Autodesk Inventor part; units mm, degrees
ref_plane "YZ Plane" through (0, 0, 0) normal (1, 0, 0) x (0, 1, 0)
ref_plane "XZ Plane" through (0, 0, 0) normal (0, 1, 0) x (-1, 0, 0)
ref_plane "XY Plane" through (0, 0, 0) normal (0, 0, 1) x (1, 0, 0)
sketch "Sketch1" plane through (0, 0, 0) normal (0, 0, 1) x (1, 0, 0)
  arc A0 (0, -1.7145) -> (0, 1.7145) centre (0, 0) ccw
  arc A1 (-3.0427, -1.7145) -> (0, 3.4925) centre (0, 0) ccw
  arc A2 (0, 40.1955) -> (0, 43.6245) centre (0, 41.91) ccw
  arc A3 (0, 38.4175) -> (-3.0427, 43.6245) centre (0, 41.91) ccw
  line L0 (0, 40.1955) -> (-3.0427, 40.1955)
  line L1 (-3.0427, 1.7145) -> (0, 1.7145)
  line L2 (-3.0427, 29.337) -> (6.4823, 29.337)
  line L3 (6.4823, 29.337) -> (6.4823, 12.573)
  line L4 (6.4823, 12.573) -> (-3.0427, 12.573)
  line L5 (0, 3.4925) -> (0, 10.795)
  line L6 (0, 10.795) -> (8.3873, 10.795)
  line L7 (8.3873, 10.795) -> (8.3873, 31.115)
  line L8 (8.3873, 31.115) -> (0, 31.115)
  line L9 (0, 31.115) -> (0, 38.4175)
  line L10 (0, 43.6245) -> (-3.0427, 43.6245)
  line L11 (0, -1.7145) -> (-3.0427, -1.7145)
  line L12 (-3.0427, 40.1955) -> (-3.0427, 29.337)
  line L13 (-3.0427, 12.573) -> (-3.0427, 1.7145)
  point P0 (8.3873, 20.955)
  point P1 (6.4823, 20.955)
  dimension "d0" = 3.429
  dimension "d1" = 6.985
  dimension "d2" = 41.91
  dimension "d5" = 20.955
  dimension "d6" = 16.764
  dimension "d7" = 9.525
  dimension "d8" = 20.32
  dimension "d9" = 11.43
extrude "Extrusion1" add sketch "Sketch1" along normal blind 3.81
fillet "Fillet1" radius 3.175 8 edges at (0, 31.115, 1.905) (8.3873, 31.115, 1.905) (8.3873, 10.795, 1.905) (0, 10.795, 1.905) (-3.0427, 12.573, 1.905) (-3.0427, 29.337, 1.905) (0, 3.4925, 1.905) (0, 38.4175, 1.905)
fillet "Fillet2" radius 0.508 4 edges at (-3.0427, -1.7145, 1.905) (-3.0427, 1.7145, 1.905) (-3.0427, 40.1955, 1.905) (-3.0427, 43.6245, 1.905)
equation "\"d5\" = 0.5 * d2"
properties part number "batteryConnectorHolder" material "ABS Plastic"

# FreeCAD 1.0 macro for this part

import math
import FreeCAD as App
import Part
import Sketcher

V = App.Vector
Q = App.Units.Quantity


def edges_at(feature, points):
    """Names of the edges that pass closest to the given points."""
    edges = feature.Shape.Edges
    near = lambda p: min(range(len(edges)), key=lambda i: edges[i].distToShape(Part.Vertex(*p))[0])
    return sorted({f"Edge{near(p) + 1}" for p in points})

doc = App.newDocument("Part")
params = doc.addObject("Spreadsheet::Sheet", "Params")
for row, (alias, value) in enumerate([
    ("sketch1_height", "0.8 in"),
    ("sketch1_height2", "0.66 in"),
    ("sketch1_width", "0.375 in"),
    ("pad1_length", "0.15 in"),
    ("fillet_radius", "0.125 in"),
    ("fillet2_radius", "0.02 in"),
], start=1):
    params.set(f"A{row}", alias)
    params.set(f"B{row}", "=" + value)
    params.setAlias(f"B{row}", alias)

body = doc.addObject("PartDesign::Body", "Body")

# Sketch on XY plane
sketch1 = body.newObject("Sketcher::SketchObject", "Sketch")
sketch1.AttachmentSupport = (doc.getObject("XY_Plane"), [""])
sketch1.MapMode = "FlatFace"
sketch1.addGeometry([
    Part.ArcOfCircle(Part.Circle(V(0, 0, 0), V(0, 0, 1), 1.7), math.radians(-90), math.radians(90)),  # 0
    Part.LineSegment(V(0, -1.7, 0), V(-3, -1.7, 0)),  # 1
    Part.ArcOfCircle(Part.Circle(V(0, 0, 0), V(0, 0, 1), 3.5), math.radians(-151), math.radians(90)),  # 2
    Part.LineSegment(V(0, 3.5, 0), V(0, 10.8, 0)),  # 3
    Part.LineSegment(V(0, 10.8, 0), V(8.4, 10.8, 0)),  # 4
    Part.LineSegment(V(8.4, 10.8, 0), V(8.4, 31.1, 0)),  # 5
    Part.LineSegment(V(8.4, 31.1, 0), V(0, 31.1, 0)),  # 6
    Part.LineSegment(V(0, 31.1, 0), V(0, 38.4, 0)),  # 7
    Part.ArcOfCircle(Part.Circle(V(0, 41.9, 0), V(0, 0, 1), 3.5), math.radians(-90), math.radians(151)),  # 8
    Part.LineSegment(V(-3, 43.6, 0), V(0, 43.6, 0)),  # 9
    Part.ArcOfCircle(Part.Circle(V(0, 41.9, 0), V(0, 0, 1), 1.7), math.radians(-90), math.radians(90)),  # 10
    Part.LineSegment(V(0, 40.2, 0), V(-3, 40.2, 0)),  # 11
    Part.LineSegment(V(-3, 40.2, 0), V(-3, 29.3, 0)),  # 12
    Part.LineSegment(V(-3, 29.3, 0), V(6.5, 29.3, 0)),  # 13
    Part.LineSegment(V(6.5, 29.3, 0), V(6.5, 12.6, 0)),  # 14
    Part.LineSegment(V(6.5, 12.6, 0), V(-3, 12.6, 0)),  # 15
    Part.LineSegment(V(-3, 12.6, 0), V(-3, 1.7, 0)),  # 16
    Part.LineSegment(V(-3, 1.7, 0), V(0, 1.7, 0)),  # 17
], False)
sketch1.addConstraint([
    Sketcher.Constraint("Tangent", 0, 1, 1, 1),
    Sketcher.Constraint("Coincident", 1, 2, 2, 1),
    Sketcher.Constraint("Coincident", 2, 2, 3, 1),
    Sketcher.Constraint("Coincident", 3, 2, 4, 1),
    Sketcher.Constraint("Coincident", 4, 2, 5, 1),
    Sketcher.Constraint("Coincident", 5, 2, 6, 1),
    Sketcher.Constraint("Coincident", 6, 2, 7, 1),
    Sketcher.Constraint("Coincident", 7, 2, 8, 1),
    Sketcher.Constraint("Coincident", 8, 2, 9, 1),
    Sketcher.Constraint("Tangent", 9, 2, 10, 2),
    Sketcher.Constraint("Tangent", 10, 1, 11, 1),
    Sketcher.Constraint("Coincident", 11, 2, 12, 1),
    Sketcher.Constraint("Coincident", 12, 2, 13, 1),
    Sketcher.Constraint("Coincident", 13, 2, 14, 1),
    Sketcher.Constraint("Coincident", 14, 2, 15, 1),
    Sketcher.Constraint("Coincident", 15, 2, 16, 1),
    Sketcher.Constraint("Coincident", 16, 2, 17, 1),
    Sketcher.Constraint("Tangent", 17, 2, 0, 2),
    Sketcher.Constraint("Horizontal", 1),
    Sketcher.Constraint("Vertical", 3),
    Sketcher.Constraint("Horizontal", 4),
    Sketcher.Constraint("Vertical", 5),
    Sketcher.Constraint("Horizontal", 6),
    Sketcher.Constraint("Vertical", 7),
    Sketcher.Constraint("Horizontal", 9),
    Sketcher.Constraint("Horizontal", 11),
    Sketcher.Constraint("Vertical", 12),
    Sketcher.Constraint("Horizontal", 13),
    Sketcher.Constraint("Vertical", 14),
    Sketcher.Constraint("Horizontal", 15),
    Sketcher.Constraint("Vertical", 16),
    Sketcher.Constraint("Horizontal", 17),
    Sketcher.Constraint("Coincident", 0, 3, -1, 1),
    Sketcher.Constraint("Coincident", 2, 3, -1, 1),
    Sketcher.Constraint("Coincident", 10, 3, 8, 3),
    Sketcher.Constraint("Equal", 2, 8),
    Sketcher.Constraint("Equal", 0, 10),
    Sketcher.Constraint("PointOnObject", 8, 3, -2),
    Sketcher.Constraint("PointOnObject", 2, 2, -2),
    Sketcher.Constraint("PointOnObject", 6, 2, -2),
    Sketcher.Constraint("Vertical", 8, 2, 11, 2),
    Sketcher.Constraint("Vertical", 12, 2, 15, 2),
    Sketcher.Constraint("Equal", 3, 7),
    Sketcher.Constraint("Equal", 12, 16),
    Sketcher.Constraint("DistanceY", 5, 1, 5, 2, Q("0.8 in")),
    Sketcher.Constraint("DistanceY", 14, 2, 14, 1, Q("0.66 in")),
    Sketcher.Constraint("Radius", 0, Q("0.0675 in")),
    Sketcher.Constraint("Radius", 2, Q("0.1375 in")),
    Sketcher.Constraint("DistanceX", 13, 1, 13, 2, Q("0.375 in")),
    Sketcher.Constraint("DistanceY", -1, 1, 8, 3, Q("1.65 in")),
    Sketcher.Constraint("DistanceX", 8, 2, 5, 2, Q("0.45 in")),
])
sketch1.setExpression("Constraints[44]", "Params.sketch1_height")
sketch1.setExpression("Constraints[45]", "Params.sketch1_height2")
sketch1.setExpression("Constraints[48]", "Params.sketch1_width")
pad1 = body.newObject("PartDesign::Pad", "Pad")
pad1.Profile = sketch1
pad1.setExpression("Length", "Params.pad1_length")
doc.recompute()

fillet = body.newObject("PartDesign::Fillet", "Fillet")
fillet.Base = (pad1, edges_at(pad1, [
    (0, 31.115, 1.905),
    (8.387, 31.115, 1.905),
    (8.387, 10.795, 1.905),
    (0, 10.795, 1.905),
    (-3.043, 12.573, 1.905),
    (-3.043, 29.337, 1.905),
    (0, 3.493, 1.905),
    (0, 38.417, 1.905),
]))
fillet.setExpression("Radius", "Params.fillet_radius")
doc.recompute()

fillet2 = body.newObject("PartDesign::Fillet", "Fillet001")
fillet2.Base = (fillet, edges_at(fillet, [
    (-3.043, -1.714, 1.905),
    (-3.043, 1.714, 1.905),
    (-3.043, 40.196, 1.905),
    (-3.043, 43.624, 1.905),
]))
fillet2.setExpression("Radius", "Params.fillet2_radius")

doc.recompute()
